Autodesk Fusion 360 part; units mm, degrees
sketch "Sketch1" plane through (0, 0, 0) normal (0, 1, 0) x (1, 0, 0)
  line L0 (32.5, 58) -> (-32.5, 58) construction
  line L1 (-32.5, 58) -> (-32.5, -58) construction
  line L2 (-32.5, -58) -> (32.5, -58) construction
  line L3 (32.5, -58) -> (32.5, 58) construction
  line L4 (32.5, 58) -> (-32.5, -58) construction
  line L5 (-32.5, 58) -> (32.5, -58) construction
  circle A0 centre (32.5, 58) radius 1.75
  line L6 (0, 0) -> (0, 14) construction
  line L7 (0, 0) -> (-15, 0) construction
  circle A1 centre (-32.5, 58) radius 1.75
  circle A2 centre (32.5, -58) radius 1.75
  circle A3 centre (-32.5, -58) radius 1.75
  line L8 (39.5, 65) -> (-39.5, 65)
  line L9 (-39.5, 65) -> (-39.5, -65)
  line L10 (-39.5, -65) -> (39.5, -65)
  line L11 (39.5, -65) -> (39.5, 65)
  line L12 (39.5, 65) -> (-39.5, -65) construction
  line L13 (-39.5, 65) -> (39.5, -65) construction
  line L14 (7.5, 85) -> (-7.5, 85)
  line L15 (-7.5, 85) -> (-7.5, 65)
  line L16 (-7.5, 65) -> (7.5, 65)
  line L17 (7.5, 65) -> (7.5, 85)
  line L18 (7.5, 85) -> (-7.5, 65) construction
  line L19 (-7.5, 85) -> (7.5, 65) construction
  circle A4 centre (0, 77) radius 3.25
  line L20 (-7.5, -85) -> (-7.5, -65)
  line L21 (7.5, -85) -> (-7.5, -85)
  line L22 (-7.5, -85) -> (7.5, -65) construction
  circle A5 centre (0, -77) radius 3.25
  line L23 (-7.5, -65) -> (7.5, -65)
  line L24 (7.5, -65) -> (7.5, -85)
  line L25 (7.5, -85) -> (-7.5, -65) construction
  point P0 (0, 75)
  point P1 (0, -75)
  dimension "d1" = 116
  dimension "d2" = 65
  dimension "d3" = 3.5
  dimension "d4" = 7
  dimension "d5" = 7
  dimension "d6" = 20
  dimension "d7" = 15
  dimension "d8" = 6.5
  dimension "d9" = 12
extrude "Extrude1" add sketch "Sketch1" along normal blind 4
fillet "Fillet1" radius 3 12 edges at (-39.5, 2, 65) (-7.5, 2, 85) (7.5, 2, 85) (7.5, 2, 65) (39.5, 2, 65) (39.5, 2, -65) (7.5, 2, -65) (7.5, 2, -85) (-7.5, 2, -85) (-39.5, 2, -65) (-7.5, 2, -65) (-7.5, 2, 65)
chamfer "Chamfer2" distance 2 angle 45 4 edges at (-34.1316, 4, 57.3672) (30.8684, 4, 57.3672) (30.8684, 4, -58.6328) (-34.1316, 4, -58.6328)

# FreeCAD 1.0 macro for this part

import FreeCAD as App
import Part
import Sketcher
Q = App.Units.Quantity


def edges_at(feature, points):
    """Names of the edges that pass closest to the given points."""
    edges = feature.Shape.Edges
    near = lambda p: min(range(len(edges)), key=lambda i: edges[i].distToShape(Part.Vertex(*p))[0])
    return sorted({f"Edge{near(p) + 1}" for p in points})


def add_polygon(sketch, points):
    """Adds a closed chain of lines whose ends are joined by coincident constraints."""
    first, n = sketch.GeometryCount, len(points)
    for a, b in zip(points, points[1:] + points[:1]):
        sketch.addGeometry(Part.LineSegment(App.Vector(*a, 0), App.Vector(*b, 0)), False)
    for i in range(n):
        sketch.addConstraint(Sketcher.Constraint("Coincident", first + i, 2, first + (i + 1) % n, 1))

doc = App.newDocument("Part")
body = doc.addObject("PartDesign::Body", "Body")

sketch1 = doc.addObject("Sketcher::SketchObject", "Sketch")
body.addObject(sketch1)
sketch1.AttachmentSupport = (doc.XZ_Plane, [""])
sketch1.MapMode = "FlatFace"
add_polygon(sketch1, [(39.5, 65), (39.5, -65), (7.5, -65), (7.5, -85), (-7.5, -85), (-7.5, -65), (-39.5, -65), (-39.5, 65), (-7.5, 65), (-7.5, 85), (7.5, 85), (7.5, 65)])
sketch1.addGeometry(Part.Circle(App.Vector(-32.5, 58, 0), App.Vector(0, 0, 1), 1.75), False)
sketch1.addGeometry(Part.Circle(App.Vector(32.5, 58, 0), App.Vector(0, 0, 1), 1.75), False)
sketch1.addGeometry(Part.Circle(App.Vector(-32.5, -58, 0), App.Vector(0, 0, 1), 1.75), False)
sketch1.addGeometry(Part.Circle(App.Vector(32.5, -58, 0), App.Vector(0, 0, 1), 1.75), False)
sketch1.addGeometry(Part.Circle(App.Vector(0, 77, 0), App.Vector(0, 0, 1), 3.25), False)
sketch1.addGeometry(Part.Circle(App.Vector(0, -77, 0), App.Vector(0, 0, 1), 3.25), False)
sketch1.addConstraint([
    Sketcher.Constraint("Vertical", 0),
    Sketcher.Constraint("Horizontal", 1),
    Sketcher.Constraint("Vertical", 2),
    Sketcher.Constraint("Horizontal", 3),
    Sketcher.Constraint("Vertical", 4),
    Sketcher.Constraint("Horizontal", 5),
    Sketcher.Constraint("Vertical", 6),
    Sketcher.Constraint("Horizontal", 7),
    Sketcher.Constraint("Vertical", 8),
    Sketcher.Constraint("Horizontal", 9),
    Sketcher.Constraint("Vertical", 10),
    Sketcher.Constraint("Horizontal", 11),
    Sketcher.Constraint("Equal", 12, 13),
    Sketcher.Constraint("Equal", 13, 14),
    Sketcher.Constraint("Equal", 14, 15),
    Sketcher.Constraint("Equal", 16, 17),
    Sketcher.Constraint("Symmetric", 13, 3, 14, 3, -1, 1),
    Sketcher.Constraint("Symmetric", 12, 3, 15, 3, -1, 1),
    Sketcher.Constraint("Symmetric", 16, 3, 17, 3, -1, 1),
    Sketcher.Constraint("Symmetric", 0, 2, 6, 2, -1, 1),
    Sketcher.Constraint("Symmetric", 2, 2, 8, 2, -1, 1),
    Sketcher.Constraint("Symmetric", 4, 2, 10, 2, -1, 1),
    Sketcher.Constraint("Symmetric", 12, 3, 13, 3, -2),
    Sketcher.Constraint("Symmetric", 1, 2, 4, 2, -2),
    Sketcher.Constraint("PointOnObject", 16, 3, -2),
    Sketcher.Constraint("Diameter", 12, Q("3.5 mm")),
    Sketcher.Constraint("Diameter", 16, Q("6.5 mm")),
    Sketcher.Constraint("DistanceX", 3, 2, 3, 1, Q("15 mm")),
    Sketcher.Constraint("DistanceY", 2, 2, 2, 1, Q("20 mm")),
    Sketcher.Constraint("DistanceY", 0, 2, -1, 1, Q("65 mm")),
    Sketcher.Constraint("DistanceX", 12, 3, 13, 3, Q("65 mm")),
    Sketcher.Constraint("DistanceY", 14, 3, 12, 3, Q("116 mm")),
    Sketcher.Constraint("DistanceX", 15, 3, 0, 2, Q("7 mm")),
    Sketcher.Constraint("DistanceY", 17, 3, 0, 2, Q("12 mm")),
])
pad1 = doc.addObject("PartDesign::Pad", "Pad")
body.addObject(pad1)
pad1.Profile = sketch1
pad1.Length = 4
pad1.Reversed = True
doc.recompute()

fillet = doc.addObject("PartDesign::Fillet", "Fillet")
body.addObject(fillet)
fillet.Base = (pad1, edges_at(pad1, [
    (-39.5, 2, 65),
    (-7.5, 2, 85),
    (7.5, 2, 85),
    (7.5, 2, 65),
    (39.5, 2, 65),
    (39.5, 2, -65),
    (7.5, 2, -65),
    (7.5, 2, -85),
    (-7.5, 2, -85),
    (-39.5, 2, -65),
    (-7.5, 2, -65),
    (-7.5, 2, 65),
]))
fillet.Radius = 3
doc.recompute()

chamfer = doc.addObject("PartDesign::Chamfer", "Chamfer")
body.addObject(chamfer)
chamfer.Base = (fillet, edges_at(fillet, [
    (-34.132, 4, 57.367),
    (30.868, 4, 57.367),
    (30.868, 4, -58.633),
    (-34.132, 4, -58.633),
]))
chamfer.Size = 2

doc.recompute()
